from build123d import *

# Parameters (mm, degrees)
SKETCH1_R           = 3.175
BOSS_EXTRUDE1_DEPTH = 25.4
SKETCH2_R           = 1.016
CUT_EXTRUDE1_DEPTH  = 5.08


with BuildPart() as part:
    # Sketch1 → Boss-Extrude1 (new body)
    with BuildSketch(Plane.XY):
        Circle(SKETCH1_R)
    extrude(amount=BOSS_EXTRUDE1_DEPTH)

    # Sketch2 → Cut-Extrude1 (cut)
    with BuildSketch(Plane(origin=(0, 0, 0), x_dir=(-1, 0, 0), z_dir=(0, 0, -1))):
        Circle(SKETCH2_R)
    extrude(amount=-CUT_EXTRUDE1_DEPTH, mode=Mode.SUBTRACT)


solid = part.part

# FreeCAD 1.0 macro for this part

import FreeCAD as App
import Part
import Sketcher
Q = App.Units.Quantity

doc = App.newDocument("Part")
body = doc.addObject("PartDesign::Body", "Body")

# Sketch on XY plane
sketch1 = body.newObject("Sketcher::SketchObject", "Sketch")
sketch1.AttachmentSupport = (doc.getObject("XY_Plane"), [""])
sketch1.MapMode = "FlatFace"
sketch1.addGeometry(Part.Circle(App.Vector(0, 0, 0), App.Vector(0, 0, 1), 3.2), False)
sketch1.addConstraint(Sketcher.Constraint("Coincident", 0, 3, -1, 1))
sketch1.addConstraint(Sketcher.Constraint("Diameter", 0, Q("0.25 in")))
pad1 = body.newObject("PartDesign::Pad", "Pad")
pad1.Profile = sketch1
pad1.Length = Q("1 in")

# Sketch on XY plane
sketch2 = body.newObject("Sketcher::SketchObject", "Sketch001")
sketch2.AttachmentSupport = (doc.getObject("XY_Plane"), [""])
sketch2.MapMode = "FlatFace"
sketch2.addGeometry(Part.Circle(App.Vector(0, 0, 0), App.Vector(0, 0, 1), 1), False)
sketch2.addConstraint(Sketcher.Constraint("Coincident", 0, 3, -1, 1))
sketch2.addConstraint(Sketcher.Constraint("Diameter", 0, Q("0.08 in")))
pocket1 = body.newObject("PartDesign::Pocket", "Pocket")
pocket1.Profile = sketch2
pocket1.Length = Q("0.2 in")
pocket1.Reversed = True

doc.recompute()
